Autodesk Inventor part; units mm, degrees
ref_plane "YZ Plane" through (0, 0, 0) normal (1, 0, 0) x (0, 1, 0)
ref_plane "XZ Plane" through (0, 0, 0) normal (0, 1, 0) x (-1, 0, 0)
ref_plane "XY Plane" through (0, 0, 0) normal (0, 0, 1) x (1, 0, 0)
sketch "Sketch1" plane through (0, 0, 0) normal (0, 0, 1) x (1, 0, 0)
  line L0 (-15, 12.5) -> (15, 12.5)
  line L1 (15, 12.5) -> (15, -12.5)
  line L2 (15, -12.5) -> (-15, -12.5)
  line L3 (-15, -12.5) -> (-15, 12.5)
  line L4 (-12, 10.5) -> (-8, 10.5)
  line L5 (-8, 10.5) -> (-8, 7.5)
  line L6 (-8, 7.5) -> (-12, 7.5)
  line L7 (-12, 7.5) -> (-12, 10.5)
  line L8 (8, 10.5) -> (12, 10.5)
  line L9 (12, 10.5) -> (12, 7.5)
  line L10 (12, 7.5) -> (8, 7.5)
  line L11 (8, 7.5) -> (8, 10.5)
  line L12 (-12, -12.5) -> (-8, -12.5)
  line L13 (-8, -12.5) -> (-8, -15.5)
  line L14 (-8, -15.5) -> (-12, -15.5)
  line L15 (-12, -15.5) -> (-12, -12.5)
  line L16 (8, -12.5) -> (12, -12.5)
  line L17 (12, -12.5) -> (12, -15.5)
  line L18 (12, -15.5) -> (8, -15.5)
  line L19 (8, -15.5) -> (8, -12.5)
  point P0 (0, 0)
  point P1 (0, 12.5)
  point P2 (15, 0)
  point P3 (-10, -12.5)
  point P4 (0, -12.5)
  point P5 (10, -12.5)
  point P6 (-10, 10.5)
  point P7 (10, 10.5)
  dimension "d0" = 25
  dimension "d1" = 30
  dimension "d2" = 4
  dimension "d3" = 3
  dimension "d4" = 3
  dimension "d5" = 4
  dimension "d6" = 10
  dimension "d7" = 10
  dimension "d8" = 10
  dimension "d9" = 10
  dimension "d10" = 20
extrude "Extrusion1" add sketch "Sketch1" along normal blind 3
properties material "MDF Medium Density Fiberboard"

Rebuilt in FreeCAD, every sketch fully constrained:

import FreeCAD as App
import Part
import Sketcher

V = App.Vector


def add_polygon(sketch, points):
    """Adds a closed chain of lines whose ends are joined by coincident constraints."""
    first, n = sketch.GeometryCount, len(points)
    for a, b in zip(points, points[1:] + points[:1]):
        sketch.addGeometry(Part.LineSegment(App.Vector(*a, 0), App.Vector(*b, 0)), False)
    for i in range(n):
        sketch.addConstraint(Sketcher.Constraint("Coincident", first + i, 2, first + (i + 1) % n, 1))

doc = App.newDocument("Part")
body = doc.addObject("PartDesign::Body", "Body")

sketch1 = body.newObject("Sketcher::SketchObject", "Sketch")
sketch1.AttachmentSupport = (doc.getObject("XY_Plane"), [""])
sketch1.MapMode = "FlatFace"
add_polygon(sketch1, [(15, 12.5), (-15, 12.5), (-15, -12.5), (-12, -12.5), (-12, -15.5), (-8, -15.5), (-8, -12.5), (8, -12.5), (8, -15.5), (12, -15.5), (12, -12.5), (15, -12.5)])
add_polygon(sketch1, [(-12, 7.5), (-12, 10.5), (-8, 10.5), (-8, 7.5)])
add_polygon(sketch1, [(8, 7.5), (8, 10.5), (12, 10.5), (12, 7.5)])
sketch1.addConstraint([
    Sketcher.Constraint("Horizontal", 0),
    Sketcher.Constraint("Vertical", 1),
    Sketcher.Constraint("Horizontal", 2),
    Sketcher.Constraint("Vertical", 3),
    Sketcher.Constraint("Horizontal", 4),
    Sketcher.Constraint("Vertical", 5),
    Sketcher.Constraint("Horizontal", 6),
    Sketcher.Constraint("Vertical", 7),
    Sketcher.Constraint("Horizontal", 8),
    Sketcher.Constraint("Vertical", 9),
    Sketcher.Constraint("Horizontal", 10),
    Sketcher.Constraint("Vertical", 11),
    Sketcher.Constraint("Vertical", 12),
    Sketcher.Constraint("Horizontal", 13),
    Sketcher.Constraint("Vertical", 14),
    Sketcher.Constraint("Horizontal", 15),
    Sketcher.Constraint("Vertical", 16),
    Sketcher.Constraint("Horizontal", 17),
    Sketcher.Constraint("Vertical", 18),
    Sketcher.Constraint("Horizontal", 19),
    Sketcher.Constraint("Symmetric", 0, 2, 10, 2, -1, 1),
    Sketcher.Constraint("Symmetric", 4, 2, 7, 2, -2),
    Sketcher.Constraint("Symmetric", 2, 2, 9, 2, -2),
    Sketcher.Constraint("Symmetric", 13, 2, 16, 2, -2),
    Sketcher.Constraint("Symmetric", 15, 2, 18, 2, -2),
    Sketcher.Constraint("Horizontal", 2, 2, 5, 2),
    Sketcher.Constraint("Vertical", 3, 2, 12, 2),
    Sketcher.Constraint("Vertical", 5, 2, 13, 2),
    Sketcher.Constraint("Equal", 10, 3),
    Sketcher.Constraint("Equal", 9, 12),
    Sketcher.Constraint("DistanceX", 0, 2, 0, 1, 30.0),
    Sketcher.Constraint("DistanceX", 2, 1, 2, 2, 3.0),
    Sketcher.Constraint("DistanceX", 4, 1, 4, 2, 4.0),
    Sketcher.Constraint("DistanceY", 1, 2, 1, 1, 25.0),
    Sketcher.Constraint("DistanceY", 5, 2, 14, 2, 20.0),
])
pad1 = body.newObject("PartDesign::Pad", "Pad")
pad1.Profile = sketch1
pad1.Length = 3

doc.recompute()
